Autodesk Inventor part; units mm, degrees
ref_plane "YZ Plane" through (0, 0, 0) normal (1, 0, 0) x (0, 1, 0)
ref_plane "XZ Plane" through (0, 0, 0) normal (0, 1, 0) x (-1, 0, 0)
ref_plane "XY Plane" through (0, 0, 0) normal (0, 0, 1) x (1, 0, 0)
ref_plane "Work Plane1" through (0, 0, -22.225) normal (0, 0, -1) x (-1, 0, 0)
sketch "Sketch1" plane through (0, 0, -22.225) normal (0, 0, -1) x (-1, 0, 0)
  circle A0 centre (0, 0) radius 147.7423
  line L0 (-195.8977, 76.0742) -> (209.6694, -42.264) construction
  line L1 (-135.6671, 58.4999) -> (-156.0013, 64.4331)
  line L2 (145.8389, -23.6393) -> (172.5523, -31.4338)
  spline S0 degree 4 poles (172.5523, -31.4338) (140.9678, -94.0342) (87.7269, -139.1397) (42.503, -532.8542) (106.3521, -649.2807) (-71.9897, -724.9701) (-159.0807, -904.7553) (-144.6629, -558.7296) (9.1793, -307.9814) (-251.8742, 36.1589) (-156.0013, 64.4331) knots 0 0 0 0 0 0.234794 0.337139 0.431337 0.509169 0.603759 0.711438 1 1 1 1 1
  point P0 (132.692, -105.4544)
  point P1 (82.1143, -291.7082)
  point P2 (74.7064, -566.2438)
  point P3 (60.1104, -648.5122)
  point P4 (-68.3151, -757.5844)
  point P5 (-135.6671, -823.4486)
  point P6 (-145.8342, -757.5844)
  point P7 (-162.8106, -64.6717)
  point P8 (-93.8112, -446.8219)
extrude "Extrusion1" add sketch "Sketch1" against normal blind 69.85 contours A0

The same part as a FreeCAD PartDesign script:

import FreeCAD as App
import Part
import Sketcher
from FreeCAD import Vector
Q = App.Units.Quantity

doc = App.newDocument("Part")
body = doc.addObject("PartDesign::Body", "Body")

sketch1 = doc.addObject("Sketcher::SketchObject", "Sketch")
body.addObject(sketch1)
sketch1.AttachmentSupport = (doc.XY_Plane, [""])
sketch1.MapMode = "FlatFace"
sketch1.AttachmentOffset = App.Placement(Vector(0, 0, -0.875 * 25.4), App.Rotation())
sketch1.addGeometry(Part.Circle(Vector(0, 0, 0), Vector(0, 0, 1), 148), False)
sketch1.addConstraint([
    Sketcher.Constraint("Coincident", 0, 3, -1, 1),
    Sketcher.Constraint("Diameter", 0, 295.4846),
])
pad1 = doc.addObject("PartDesign::Pad", "Pad")
body.addObject(pad1)
pad1.Profile = sketch1
pad1.Length = Q("2.75 in")

doc.recompute()
